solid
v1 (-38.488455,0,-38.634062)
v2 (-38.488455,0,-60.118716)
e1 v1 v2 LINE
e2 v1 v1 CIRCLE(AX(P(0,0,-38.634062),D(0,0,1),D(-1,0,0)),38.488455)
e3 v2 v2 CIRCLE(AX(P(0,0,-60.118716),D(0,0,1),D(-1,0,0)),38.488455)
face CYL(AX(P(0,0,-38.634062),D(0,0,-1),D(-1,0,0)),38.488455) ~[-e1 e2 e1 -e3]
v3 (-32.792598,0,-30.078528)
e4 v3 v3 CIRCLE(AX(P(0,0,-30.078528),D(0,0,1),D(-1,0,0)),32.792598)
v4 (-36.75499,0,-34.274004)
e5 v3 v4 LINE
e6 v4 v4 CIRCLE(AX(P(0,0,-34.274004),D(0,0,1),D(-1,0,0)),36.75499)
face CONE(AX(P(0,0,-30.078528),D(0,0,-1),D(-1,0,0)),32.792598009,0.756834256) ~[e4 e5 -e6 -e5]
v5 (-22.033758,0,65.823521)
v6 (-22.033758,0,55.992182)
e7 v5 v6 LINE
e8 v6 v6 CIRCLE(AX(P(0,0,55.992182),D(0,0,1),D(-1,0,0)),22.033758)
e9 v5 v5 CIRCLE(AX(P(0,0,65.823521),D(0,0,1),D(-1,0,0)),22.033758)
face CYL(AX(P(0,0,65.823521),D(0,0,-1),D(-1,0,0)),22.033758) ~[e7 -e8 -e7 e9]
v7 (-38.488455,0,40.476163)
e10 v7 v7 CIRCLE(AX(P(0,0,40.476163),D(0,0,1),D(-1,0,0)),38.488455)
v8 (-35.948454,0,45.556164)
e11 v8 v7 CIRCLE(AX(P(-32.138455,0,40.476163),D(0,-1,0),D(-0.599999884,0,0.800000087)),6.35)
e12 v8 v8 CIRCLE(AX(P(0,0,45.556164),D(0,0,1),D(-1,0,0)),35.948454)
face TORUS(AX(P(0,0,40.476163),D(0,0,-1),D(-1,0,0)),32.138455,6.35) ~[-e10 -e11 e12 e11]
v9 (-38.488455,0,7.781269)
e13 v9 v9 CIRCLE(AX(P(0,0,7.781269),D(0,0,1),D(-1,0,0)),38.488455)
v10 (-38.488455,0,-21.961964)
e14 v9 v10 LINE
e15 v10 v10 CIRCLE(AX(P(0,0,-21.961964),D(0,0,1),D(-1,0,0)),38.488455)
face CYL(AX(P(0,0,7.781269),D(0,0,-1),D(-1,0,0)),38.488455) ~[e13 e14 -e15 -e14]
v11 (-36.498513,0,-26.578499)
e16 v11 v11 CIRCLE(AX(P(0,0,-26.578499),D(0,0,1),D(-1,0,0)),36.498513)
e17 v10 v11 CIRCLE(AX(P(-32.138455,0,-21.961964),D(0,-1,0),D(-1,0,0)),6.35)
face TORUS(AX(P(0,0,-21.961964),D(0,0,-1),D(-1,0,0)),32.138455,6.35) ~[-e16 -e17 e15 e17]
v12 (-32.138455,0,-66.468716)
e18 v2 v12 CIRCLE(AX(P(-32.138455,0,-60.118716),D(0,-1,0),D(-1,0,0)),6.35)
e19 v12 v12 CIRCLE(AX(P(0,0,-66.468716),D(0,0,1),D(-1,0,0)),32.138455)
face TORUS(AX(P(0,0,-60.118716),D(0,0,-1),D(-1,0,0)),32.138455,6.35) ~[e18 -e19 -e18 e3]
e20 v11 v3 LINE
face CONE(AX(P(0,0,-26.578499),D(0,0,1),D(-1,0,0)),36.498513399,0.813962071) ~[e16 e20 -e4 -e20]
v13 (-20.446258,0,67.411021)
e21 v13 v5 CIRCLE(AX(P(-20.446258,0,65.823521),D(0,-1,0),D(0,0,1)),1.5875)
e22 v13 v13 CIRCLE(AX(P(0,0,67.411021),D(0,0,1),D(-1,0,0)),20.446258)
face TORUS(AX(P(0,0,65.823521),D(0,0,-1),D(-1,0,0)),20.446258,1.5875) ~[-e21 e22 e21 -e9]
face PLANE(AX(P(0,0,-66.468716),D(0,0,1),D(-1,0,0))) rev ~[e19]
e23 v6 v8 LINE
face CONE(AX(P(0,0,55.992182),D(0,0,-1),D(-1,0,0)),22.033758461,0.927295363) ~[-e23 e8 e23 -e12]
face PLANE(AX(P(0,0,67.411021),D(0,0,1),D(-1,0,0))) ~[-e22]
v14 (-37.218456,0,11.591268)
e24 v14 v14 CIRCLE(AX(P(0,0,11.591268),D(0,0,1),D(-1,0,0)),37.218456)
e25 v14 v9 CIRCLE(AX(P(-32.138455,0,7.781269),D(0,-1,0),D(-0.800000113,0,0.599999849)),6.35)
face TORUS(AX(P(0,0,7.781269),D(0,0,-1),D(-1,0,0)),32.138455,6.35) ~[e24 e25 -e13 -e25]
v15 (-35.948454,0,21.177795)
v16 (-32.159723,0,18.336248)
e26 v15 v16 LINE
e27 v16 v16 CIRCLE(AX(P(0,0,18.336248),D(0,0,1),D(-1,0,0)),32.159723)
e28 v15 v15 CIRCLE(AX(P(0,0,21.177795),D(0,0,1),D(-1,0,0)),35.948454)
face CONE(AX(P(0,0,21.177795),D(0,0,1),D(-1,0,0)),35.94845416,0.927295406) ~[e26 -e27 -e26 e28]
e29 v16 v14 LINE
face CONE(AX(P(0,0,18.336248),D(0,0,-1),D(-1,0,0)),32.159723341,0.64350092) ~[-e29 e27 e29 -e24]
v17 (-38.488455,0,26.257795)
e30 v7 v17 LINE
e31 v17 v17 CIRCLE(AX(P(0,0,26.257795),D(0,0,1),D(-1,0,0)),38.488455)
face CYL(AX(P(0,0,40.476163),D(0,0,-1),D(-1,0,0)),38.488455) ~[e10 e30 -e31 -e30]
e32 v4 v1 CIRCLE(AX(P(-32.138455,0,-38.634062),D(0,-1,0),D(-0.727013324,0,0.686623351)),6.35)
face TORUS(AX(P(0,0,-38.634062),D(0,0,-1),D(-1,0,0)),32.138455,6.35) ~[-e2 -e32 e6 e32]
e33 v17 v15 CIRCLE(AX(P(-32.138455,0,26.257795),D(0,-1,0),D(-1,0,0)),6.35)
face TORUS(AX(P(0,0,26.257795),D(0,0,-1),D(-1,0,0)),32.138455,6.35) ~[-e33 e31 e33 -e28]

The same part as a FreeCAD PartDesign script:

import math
import FreeCAD as App
import Part
import Sketcher
from FreeCAD import Vector
Q = App.Units.Quantity

doc = App.newDocument("Part")
body = doc.addObject("PartDesign::Body", "Body")

# Sketch on XZ plane
sketch1 = doc.addObject("Sketcher::SketchObject", "Sketch")
body.addObject(sketch1)
sketch1.AttachmentSupport = (doc.XZ_Plane, [""])
sketch1.MapMode = "FlatFace"
sketch1.addGeometry([
    Part.LineSegment(Vector(16.180366, 0, 0), Vector(37.0747, 0, 0)),  # 0
    Part.LineSegment(Vector(37.0747, 0, 0), Vector(37.0747, 26.117915, 0)),  # 1
    Part.LineSegment(Vector(37.0747, 26.117915, 0), Vector(34.016993, 32.233328, 0)),  # 2
    Part.LineSegment(Vector(34.016993, 32.233328, 0), Vector(31.21409, 39.113171, 0)),  # 3
    Part.LineSegment(Vector(31.21409, 39.113171, 0), Vector(31.21409, 43.44492, 0)),  # 4
    Part.LineSegment(Vector(31.21409, 43.44492, 0), Vector(21.786163, 43.44492, 0)),  # 5
    Part.LineSegment(Vector(21.786163, 43.44492, 0), Vector(21.786163, 39.113171, 0)),  # 6
    Part.LineSegment(Vector(21.786163, 39.113171, 0), Vector(18.728456, 32.233328, 0)),  # 7
    Part.LineSegment(Vector(18.728456, 32.233328, 0), Vector(16.180366, 26.117915, 0)),  # 8
    Part.LineSegment(Vector(16.180366, 26.117915, 0), Vector(16.180366, 0, 0)),  # 9
], False)
sketch1.addConstraint([
    Sketcher.Constraint("Coincident", 0, 2, 1, 1),
    Sketcher.Constraint("Coincident", 1, 2, 2, 1),
    Sketcher.Constraint("Coincident", 2, 2, 3, 1),
    Sketcher.Constraint("Coincident", 3, 2, 4, 1),
    Sketcher.Constraint("Coincident", 4, 2, 5, 1),
    Sketcher.Constraint("Coincident", 5, 2, 6, 1),
    Sketcher.Constraint("Coincident", 6, 2, 7, 1),
    Sketcher.Constraint("Coincident", 7, 2, 8, 1),
    Sketcher.Constraint("Coincident", 8, 2, 9, 1),
    Sketcher.Constraint("Coincident", 9, 2, 0, 1),
    Sketcher.Constraint("Horizontal", 0),
    Sketcher.Constraint("Vertical", 1),
    Sketcher.Constraint("Vertical", 4),
    Sketcher.Constraint("Horizontal", 5),
    Sketcher.Constraint("Vertical", 6),
    Sketcher.Constraint("Vertical", 9),
    Sketcher.Constraint("PointOnObject", 0, 2, -1),
    Sketcher.Constraint("Horizontal", 3, 2, 6, 2),
    Sketcher.Constraint("Horizontal", 2, 2, 7, 2),
    Sketcher.Constraint("Horizontal", 1, 2, 8, 2),
    Sketcher.Constraint("DistanceY", 4, 1, 4, 2, 4.331749),
    Sketcher.Constraint("DistanceX", -1, 1, 0, 2, 37.0747),
    Sketcher.Constraint("Distance", 2, 6.837239),
    Sketcher.Constraint("Distance", 8, 6.62503),
    Sketcher.Constraint("DistanceX", 0, 1, 0, 2, 20.894334),
    Sketcher.Constraint("DistanceX", 5, 2, 5, 1, 9.427927),
    Sketcher.Constraint("DistanceY", 1, 1, 1, 2, 26.117915),
    Sketcher.Constraint("DistanceX", -1, 1, 3, 2, 31.21409),
    Sketcher.Constraint("DistanceY", -1, 1, 3, 2, 39.113171),
    Sketcher.Constraint("DistanceX", 5, 2, 2, 2, 12.23083),
])
pad1 = doc.addObject("PartDesign::Pad", "Pad")
body.addObject(pad1)
pad1.Profile = sketch1
pad1.Length = Q("0.5 in")
body2 = doc.addObject("PartDesign::Body", "Body001")

# Sketch on XZ plane
sketch2 = doc.addObject("Sketcher::SketchObject", "Sketch001")
body2.addObject(sketch2)
sketch2.AttachmentSupport = (doc.getObject("XZ_Plane001"), [""])
sketch2.MapMode = "FlatFace"
sketch2.addGeometry(Part.Circle(Vector(78.261755, 32.233328, 0), Vector(0, 0, 1), 22.505559), False)
sketch2.addConstraint([
    Sketcher.Constraint("Diameter", 0, 45.011118),
    Sketcher.Constraint("DistanceX", -1, 1, 0, 3, 78.261755),
    Sketcher.Constraint("DistanceY", -1, 1, 0, 3, 32.233328),
])
pad2 = doc.addObject("PartDesign::Pad", "Pad001")
body2.addObject(pad2)
pad2.Profile = sketch2
pad2.Length = Q("0.3 in")
body3 = doc.addObject("PartDesign::Body", "Body002")

# Sketch on XY plane
sketch3 = doc.addObject("Sketcher::SketchObject", "Sketch002")
body3.addObject(sketch3)
sketch3.AttachmentSupport = (doc.getObject("XY_Plane002"), [""])
sketch3.MapMode = "FlatFace"
sketch3.addGeometry([
    Part.LineSegment(Vector(-30.142028, 17.96403, 0), Vector(-30.142028, 0, 0)),
    Part.LineSegment(Vector(-30.142028, 0, 0), Vector(0, 0, 0)),
    Part.LineSegment(Vector(0, 0, 0), Vector(0, 17.96403, 0)),
    Part.LineSegment(Vector(0, 17.96403, 0), Vector(-30.142028, 17.96403, 0)),
], False)
sketch3.addConstraint([
    Sketcher.Constraint("Coincident", 0, 2, 1, 1),
    Sketcher.Constraint("Coincident", 1, 2, 2, 1),
    Sketcher.Constraint("Coincident", 2, 2, 3, 1),
    Sketcher.Constraint("Coincident", 3, 2, 0, 1),
    Sketcher.Constraint("Vertical", 0),
    Sketcher.Constraint("Horizontal", 1),
    Sketcher.Constraint("Vertical", 2),
    Sketcher.Constraint("Horizontal", 3),
    Sketcher.Constraint("Coincident", 1, 2, -1, 1),
    Sketcher.Constraint("DistanceY", 0, 2, 0, 1, 17.96403),
    Sketcher.Constraint("DistanceX", 1, 1, 1, 2, 30.142028),
])
pad3 = doc.addObject("PartDesign::Pad", "Pad002")
body3.addObject(pad3)
pad3.Profile = sketch3
pad3.Length = Q("0.1 in")

# Sketch on XY plane
sketch4 = doc.addObject("Sketcher::SketchObject", "Sketch003")
body3.addObject(sketch4)
sketch4.AttachmentSupport = (doc.getObject("XY_Plane002"), [""])
sketch4.MapMode = "FlatFace"
sketch4.AttachmentOffset = App.Placement(Vector(0, 0, 0.1 * 25.4), App.Rotation())
sketch4.addGeometry([
    Part.LineSegment(Vector(-35.747826, 4.459156, 0), Vector(-30.142028, 2.420685, 0)),  # 0
    Part.LineSegment(Vector(-30.142028, 2.420685, 0), Vector(2.983129, 2.420685, 0)),  # 1
    Part.LineSegment(Vector(2.983129, 2.420685, 0), Vector(5.021604, 4.459156, 0)),  # 2
    Part.LineSegment(Vector(5.021604, 4.459156, 0), Vector(5.021604, 7.262054, 0)),  # 3
    Part.LineSegment(Vector(5.021604, 7.262054, 0), Vector(-35.747826, 7.262054, 0)),  # 4
    Part.LineSegment(Vector(-35.747826, 7.262054, 0), Vector(-35.747826, 4.459156, 0)),  # 5
    Part.LineSegment(Vector(2.983129, 11.848615, 0), Vector(5.021604, 14.396704, 0)),  # 6
    Part.LineSegment(Vector(5.021604, 14.396704, 0), Vector(-32.690119, 14.396704, 0)),  # 7
    Part.LineSegment(Vector(-32.690119, 14.396704, 0), Vector(-32.690119, 11.848615, 0)),  # 8
    Part.LineSegment(Vector(-32.690119, 11.848615, 0), Vector(2.983129, 11.848615, 0)),  # 9
], False)
sketch4.addConstraint([
    Sketcher.Constraint("Coincident", 0, 2, 1, 1),
    Sketcher.Constraint("Coincident", 1, 2, 2, 1),
    Sketcher.Constraint("Coincident", 2, 2, 3, 1),
    Sketcher.Constraint("Coincident", 3, 2, 4, 1),
    Sketcher.Constraint("Coincident", 4, 2, 5, 1),
    Sketcher.Constraint("Coincident", 5, 2, 0, 1),
    Sketcher.Constraint("Coincident", 6, 2, 7, 1),
    Sketcher.Constraint("Coincident", 7, 2, 8, 1),
    Sketcher.Constraint("Coincident", 8, 2, 9, 1),
    Sketcher.Constraint("Coincident", 9, 2, 6, 1),
    Sketcher.Constraint("Horizontal", 1),
    Sketcher.Constraint("Vertical", 3),
    Sketcher.Constraint("Horizontal", 4),
    Sketcher.Constraint("Vertical", 5),
    Sketcher.Constraint("Horizontal", 7),
    Sketcher.Constraint("Vertical", 8),
    Sketcher.Constraint("Horizontal", 9),
    Sketcher.Constraint("Horizontal", 2, 2, 5, 2),
    Sketcher.Constraint("Vertical", 3, 2, 6, 2),
    Sketcher.Constraint("Vertical", 1, 2, 9, 2),
    Sketcher.Constraint("DistanceX", 4, 2, 4, 1, 40.76943),
    Sketcher.Constraint("DistanceX", 9, 1, 9, 2, 35.673248),
    Sketcher.Constraint("DistanceY", 8, 2, 8, 1, 2.548089),
    Sketcher.Constraint("DistanceX", 4, 2, 0, 2, 5.605798),
    Sketcher.Constraint("Distance", 6, 3.263149),
    Sketcher.Constraint("DistanceY", 3, 1, 3, 2, 2.802898),
    Sketcher.Constraint("DistanceX", -1, 1, 1, 2, 2.983129),
    Sketcher.Constraint("DistanceY", 1, 2, 2, 2, 2.038471),
    Sketcher.Constraint("DistanceY", 3, 2, 6, 2, 7.13465),
    Sketcher.Constraint("DistanceY", -1, 1, 0, 2, 2.420685),
])
pad4 = doc.addObject("PartDesign::Pad", "Pad003")
body3.addObject(pad4)
pad4.Profile = sketch4
pad4.Length = Q("0.05 in")
body4 = doc.addObject("PartDesign::Body", "Body003")

# Sketch on XZ plane
sketch5 = doc.addObject("Sketcher::SketchObject", "Sketch004")
body4.addObject(sketch5)
sketch5.AttachmentSupport = (doc.getObject("XZ_Plane003"), [""])
sketch5.MapMode = "FlatFace"
sketch5.addGeometry([
    Part.LineSegment(Vector(0, -66.468716, 0), Vector(0, 67.411021, 0)),  # 0
    Part.LineSegment(Vector(0, 67.411021, 0), Vector(-20.446258, 67.411021, 0)),  # 1
    Part.ArcOfCircle(Part.Circle(Vector(-20.446258, 65.823521, 0), Vector(0, 0, 1), 1.5875), math.radians(90), math.radians(180)),  # 2
    Part.LineSegment(Vector(-22.033758, 65.823521, 0), Vector(-22.033758, 55.992182, 0)),  # 3
    Part.LineSegment(Vector(-22.033758, 55.992182, 0), Vector(-35.948454, 45.556164, 0)),  # 4
    Part.ArcOfCircle(Part.Circle(Vector(-32.138455, 40.476163, 0), Vector(0, 0, 1), 6.35), math.radians(126.869889), math.radians(180)),  # 5
    Part.LineSegment(Vector(-38.488455, 40.476163, 0), Vector(-38.488455, 26.257795, 0)),  # 6
    Part.ArcOfCircle(Part.Circle(Vector(-32.138455, 26.257795, 0), Vector(0, 0, 1), 6.35), math.radians(180), math.radians(233.130113)),  # 7
    Part.LineSegment(Vector(-35.948454, 21.177795, 0), Vector(-32.159723, 18.336248, 0)),  # 8
    Part.LineSegment(Vector(-32.159723, 18.336248, 0), Vector(-37.218456, 11.591268, 0)),  # 9
    Part.ArcOfCircle(Part.Circle(Vector(-32.138455, 7.781269, 0), Vector(0, 0, 1), 6.35), math.radians(143.130113), math.radians(180)),  # 10
    Part.LineSegment(Vector(-38.488455, 7.781269, 0), Vector(-38.488455, -21.961964, 0)),  # 11
    Part.ArcOfCircle(Part.Circle(Vector(-32.138455, -21.961964, 0), Vector(0, 0, 1), 6.35), math.radians(180), math.radians(226.636591)),  # 12
    Part.LineSegment(Vector(-36.498513, -26.578499, 0), Vector(-32.792598, -30.078528, 0)),  # 13
    Part.LineSegment(Vector(-32.792598, -30.078528, 0), Vector(-36.75499, -34.274004, 0)),  # 14
    Part.ArcOfCircle(Part.Circle(Vector(-32.138455, -38.634062, 0), Vector(0, 0, 1), 6.35), math.radians(136.636591), math.radians(180)),  # 15
    Part.LineSegment(Vector(-38.488455, -38.634062, 0), Vector(-38.488455, -60.118716, 0)),  # 16
    Part.ArcOfCircle(Part.Circle(Vector(-32.138455, -60.118716, 0), Vector(0, 0, 1), 6.35), math.radians(180), math.radians(270)),  # 17
    Part.LineSegment(Vector(-32.138455, -66.468716, 0), Vector(0, -66.468716, 0)),  # 18
], False)
sketch5.addConstraint([
    Sketcher.Constraint("Coincident", 0, 2, 1, 1),
    Sketcher.Constraint("Coincident", 1, 2, 2, 1),
    Sketcher.Constraint("Coincident", 2, 2, 3, 1),
    Sketcher.Constraint("Coincident", 3, 2, 4, 1),
    Sketcher.Constraint("Coincident", 4, 2, 5, 1),
    Sketcher.Constraint("Coincident", 5, 2, 6, 1),
    Sketcher.Constraint("Coincident", 6, 2, 7, 1),
    Sketcher.Constraint("Coincident", 7, 2, 8, 1),
    Sketcher.Constraint("Coincident", 8, 2, 9, 1),
    Sketcher.Constraint("Coincident", 9, 2, 10, 1),
    Sketcher.Constraint("Coincident", 10, 2, 11, 1),
    Sketcher.Constraint("Coincident", 11, 2, 12, 1),
    Sketcher.Constraint("Coincident", 12, 2, 13, 1),
    Sketcher.Constraint("Coincident", 13, 2, 14, 1),
    Sketcher.Constraint("Coincident", 14, 2, 15, 1),
    Sketcher.Constraint("Coincident", 15, 2, 16, 1),
    Sketcher.Constraint("Coincident", 16, 2, 17, 1),
    Sketcher.Constraint("Coincident", 17, 2, 18, 1),
    Sketcher.Constraint("Coincident", 18, 2, 0, 1),
    Sketcher.Constraint("Vertical", 0),
    Sketcher.Constraint("Horizontal", 1),
    Sketcher.Constraint("Vertical", 3),
    Sketcher.Constraint("Vertical", 6),
    Sketcher.Constraint("Vertical", 11),
    Sketcher.Constraint("Vertical", 16),
    Sketcher.Constraint("Horizontal", 18),
    Sketcher.Constraint("PointOnObject", 0, 2, -2),
    Sketcher.Constraint("Radius", 5, Q("0.25 in")),
    Sketcher.Constraint("Radius", 7, Q("0.25 in")),
    Sketcher.Constraint("Radius", 10, Q("0.25 in")),
    Sketcher.Constraint("Radius", 12, Q("0.25 in")),
    Sketcher.Constraint("Radius", 15, Q("0.25 in")),
    Sketcher.Constraint("Radius", 17, Q("0.25 in")),
    Sketcher.Constraint("Radius", 2, Q("0.0625 in")),
    Sketcher.Constraint("DistanceY", 5, 3, 4, 2, Q("0.2 in")),
    Sketcher.Constraint("DistanceY", 5, 2, 4, 2, Q("0.2 in")),
    Sketcher.Constraint("DistanceX", 6, 2, 7, 2, Q("0.1 in")),
    Sketcher.Constraint("DistanceY", 7, 2, 6, 2, Q("0.2 in")),
    Sketcher.Constraint("DistanceX", 9, 2, 10, 3, Q("0.2 in")),
    Sketcher.Constraint("DistanceX", 9, 2, 7, 3, Q("0.2 in")),
    Sketcher.Constraint("DistanceY", 10, 2, 9, 2, Q("0.15 in")),
    Sketcher.Constraint("DistanceX", 11, 2, 15, 3, Q("0.25 in")),
    Sketcher.Constraint("DistanceX", 16, 2, 17, 2, Q("0.25 in")),
    Sketcher.Constraint("DistanceY", 17, 2, 16, 2, Q("0.25 in")),
    Sketcher.Constraint("DistanceX", 2, 2, 1, 2, Q("0.0625 in")),
    Sketcher.Constraint("DistanceY", 2, 2, 1, 2, Q("0.0625 in")),
    Sketcher.Constraint("DistanceX", 1, 2, 1, 1, 20.446258),
    Sketcher.Constraint("DistanceY", 3, 2, 3, 1, 9.831339),
    Sketcher.Constraint("DistanceY", 12, 2, -1, 1, 26.578499),
    Sketcher.Constraint("DistanceX", 13, 2, -1, 1, 32.792598),
    Sketcher.Constraint("DistanceY", 15, 3, 12, 3, 16.672098),
    Sketcher.Constraint("DistanceY", 15, 3, 11, 2, 16.672098),
    Sketcher.Constraint("DistanceY", 15, 2, 11, 2, 16.672098),
    Sketcher.Constraint("Distance", 4, 17.393368),
    Sketcher.Constraint("Distance", 13, 5.097452),
    Sketcher.Constraint("DistanceX", 18, 1, 18, 2, 32.138455),
    Sketcher.Constraint("DistanceY", 0, 1, 0, 2, 133.879737),
    Sketcher.Constraint("DistanceY", 6, 2, 6, 1, 14.218368),
    Sketcher.Constraint("DistanceY", 11, 2, 11, 1, 29.743234),
    Sketcher.Constraint("DistanceY", 16, 2, 16, 1, 21.484653),
    Sketcher.Constraint("DistanceY", -1, 1, 2, 3, 65.823521),
    Sketcher.Constraint("DistanceX", 14, 2, -1, 1, 36.75499),
    Sketcher.Constraint("DistanceX", 7, 2, 8, 2, 3.788731),
    Sketcher.Constraint("DistanceY", 10, 3, 8, 2, 10.554978),
])
revolution = doc.addObject("PartDesign::Revolution", "Revolution")
body4.addObject(revolution)
revolution.Profile = sketch5
revolution.ReferenceAxis = (sketch5, ["V_Axis"])
revolution.Angle = 360
body.Visibility = False
body2.Visibility = False
body3.Visibility = False

doc.recompute()
